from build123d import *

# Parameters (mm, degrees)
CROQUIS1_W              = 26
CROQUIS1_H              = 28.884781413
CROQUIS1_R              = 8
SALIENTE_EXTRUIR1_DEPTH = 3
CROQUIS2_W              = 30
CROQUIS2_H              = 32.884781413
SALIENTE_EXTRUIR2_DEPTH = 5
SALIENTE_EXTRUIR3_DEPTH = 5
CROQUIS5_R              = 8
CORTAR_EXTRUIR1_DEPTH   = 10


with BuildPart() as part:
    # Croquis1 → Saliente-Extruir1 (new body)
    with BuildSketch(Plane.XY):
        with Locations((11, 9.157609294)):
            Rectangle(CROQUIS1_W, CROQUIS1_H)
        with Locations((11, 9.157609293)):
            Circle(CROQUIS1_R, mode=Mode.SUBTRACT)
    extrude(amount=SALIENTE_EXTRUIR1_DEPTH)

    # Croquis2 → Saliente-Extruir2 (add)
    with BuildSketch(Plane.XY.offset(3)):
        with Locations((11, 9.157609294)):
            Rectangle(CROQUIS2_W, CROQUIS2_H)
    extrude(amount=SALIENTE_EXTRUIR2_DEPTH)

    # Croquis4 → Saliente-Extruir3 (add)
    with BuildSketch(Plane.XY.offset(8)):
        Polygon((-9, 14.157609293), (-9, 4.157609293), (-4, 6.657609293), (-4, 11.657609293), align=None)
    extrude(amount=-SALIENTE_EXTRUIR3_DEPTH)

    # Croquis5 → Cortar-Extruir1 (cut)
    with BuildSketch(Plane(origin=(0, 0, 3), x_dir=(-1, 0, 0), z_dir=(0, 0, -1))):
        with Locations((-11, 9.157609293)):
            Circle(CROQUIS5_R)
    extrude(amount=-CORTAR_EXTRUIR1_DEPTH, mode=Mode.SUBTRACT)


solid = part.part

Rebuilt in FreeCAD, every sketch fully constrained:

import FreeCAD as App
import Part
import Sketcher
from FreeCAD import Vector


def add_polygon(sketch, points):
    """Adds a closed chain of lines whose ends are joined by coincident constraints."""
    first, n = sketch.GeometryCount, len(points)
    for a, b in zip(points, points[1:] + points[:1]):
        sketch.addGeometry(Part.LineSegment(App.Vector(*a, 0), App.Vector(*b, 0)), False)
    for i in range(n):
        sketch.addConstraint(Sketcher.Constraint("Coincident", first + i, 2, first + (i + 1) % n, 1))

doc = App.newDocument("Part")
body = doc.addObject("PartDesign::Body", "Body")

# Sketch on XY plane
sketch1 = body.newObject("Sketcher::SketchObject", "Sketch")
sketch1.AttachmentSupport = (doc.getObject("XY_Plane"), [""])
sketch1.MapMode = "FlatFace"
add_polygon(sketch1, [(-2, 24), (-2, -5), (24, -5), (24, 24)])  # lines 0-3
sketch1.addGeometry(Part.Circle(Vector(11, 9, 0), Vector(0, 0, 1), 8), False)  # 4
sketch1.addConstraint(Sketcher.Constraint("Vertical", 0))
sketch1.addConstraint(Sketcher.Constraint("Horizontal", 1))
sketch1.addConstraint(Sketcher.Constraint("Vertical", 2))
sketch1.addConstraint(Sketcher.Constraint("Horizontal", 3))
sketch1.addConstraint(Sketcher.Constraint("Diameter", 4, 16.0))
sketch1.addConstraint(Sketcher.Constraint("DistanceX", 1, 1, 1, 2, 26.0))
sketch1.addConstraint(Sketcher.Constraint("DistanceX", -1, 1, 4, 3, 11.0))
sketch1.addConstraint(Sketcher.Constraint("DistanceX", 0, 2, -1, 1, 2.0))
sketch1.addConstraint(Sketcher.Constraint("DistanceY", -1, 1, 2, 2, 23.6))
sketch1.addConstraint(Sketcher.Constraint("DistanceY", 0, 2, 0, 1, 28.884781))
sketch1.addConstraint(Sketcher.Constraint("DistanceY", -1, 1, 4, 3, 9.157609))
pad1 = body.newObject("PartDesign::Pad", "Pad")
pad1.Profile = sketch1
pad1.Length = 3

# Sketch on XY plane
sketch2 = body.newObject("Sketcher::SketchObject", "Sketch001")
sketch2.AttachmentSupport = (doc.getObject("XY_Plane"), [""])
sketch2.MapMode = "FlatFace"
sketch2.AttachmentOffset = App.Placement(Vector(0, 0, 3), App.Rotation())
add_polygon(sketch2, [(-4, 26), (-4, -7), (26, -7), (26, 26)])  # lines 0-3
sketch2.addConstraint(Sketcher.Constraint("Vertical", 0))
sketch2.addConstraint(Sketcher.Constraint("Horizontal", 1))
sketch2.addConstraint(Sketcher.Constraint("Vertical", 2))
sketch2.addConstraint(Sketcher.Constraint("Horizontal", 3))
sketch2.addConstraint(Sketcher.Constraint("DistanceX", 1, 1, 1, 2, 30.0))
sketch2.addConstraint(Sketcher.Constraint("DistanceX", 0, 2, -1, 1, 4.0))
sketch2.addConstraint(Sketcher.Constraint("DistanceY", -1, 1, 2, 2, 25.6))
sketch2.addConstraint(Sketcher.Constraint("DistanceY", 0, 2, 0, 1, 32.884781))
pad2 = body.newObject("PartDesign::Pad", "Pad001")
pad2.Profile = sketch2
pad2.Length = 5

# Sketch on XY plane
sketch3 = body.newObject("Sketcher::SketchObject", "Sketch002")
sketch3.AttachmentSupport = (doc.getObject("XY_Plane"), [""])
sketch3.MapMode = "FlatFace"
sketch3.AttachmentOffset = App.Placement(Vector(0, 0, 8), App.Rotation())
add_polygon(sketch3, [(-9, 14), (-9, 4), (-4, 7), (-4, 12)])  # lines 0-3
sketch3.addConstraint(Sketcher.Constraint("Vertical", 0))
sketch3.addConstraint(Sketcher.Constraint("Vertical", 2))
sketch3.addConstraint(Sketcher.Constraint("Equal", 1, 3))
sketch3.addConstraint(Sketcher.Constraint("DistanceY", 0, 2, 0, 1, 10.0))
sketch3.addConstraint(Sketcher.Constraint("DistanceY", 2, 1, 2, 2, 5.0))
sketch3.addConstraint(Sketcher.Constraint("DistanceX", 0, 2, -1, 1, 9.0))
sketch3.addConstraint(Sketcher.Constraint("DistanceX", 1, 2, -1, 1, 4.0))
sketch3.addConstraint(Sketcher.Constraint("DistanceY", -1, 1, 0, 2, 4.157609))
pad3 = body.newObject("PartDesign::Pad", "Pad002")
pad3.Profile = sketch3
pad3.Length = 5
pad3.Reversed = True

# Sketch on XY plane
sketch4 = body.newObject("Sketcher::SketchObject", "Sketch003")
sketch4.AttachmentSupport = (doc.getObject("XY_Plane"), [""])
sketch4.MapMode = "FlatFace"
sketch4.AttachmentOffset = App.Placement(Vector(0, 0, 3), App.Rotation())
sketch4.addGeometry(Part.Circle(Vector(11, 9, 0), Vector(0, 0, 1), 8), False)
sketch4.addConstraint(Sketcher.Constraint("Diameter", 0, 16.0))
sketch4.addConstraint(Sketcher.Constraint("DistanceX", -1, 1, 0, 3, 11.0))
sketch4.addConstraint(Sketcher.Constraint("DistanceY", -1, 1, 0, 3, 9.157609))
pocket1 = body.newObject("PartDesign::Pocket", "Pocket")
pocket1.Profile = sketch4
pocket1.Length = 10
pocket1.Reversed = True

doc.recompute()
